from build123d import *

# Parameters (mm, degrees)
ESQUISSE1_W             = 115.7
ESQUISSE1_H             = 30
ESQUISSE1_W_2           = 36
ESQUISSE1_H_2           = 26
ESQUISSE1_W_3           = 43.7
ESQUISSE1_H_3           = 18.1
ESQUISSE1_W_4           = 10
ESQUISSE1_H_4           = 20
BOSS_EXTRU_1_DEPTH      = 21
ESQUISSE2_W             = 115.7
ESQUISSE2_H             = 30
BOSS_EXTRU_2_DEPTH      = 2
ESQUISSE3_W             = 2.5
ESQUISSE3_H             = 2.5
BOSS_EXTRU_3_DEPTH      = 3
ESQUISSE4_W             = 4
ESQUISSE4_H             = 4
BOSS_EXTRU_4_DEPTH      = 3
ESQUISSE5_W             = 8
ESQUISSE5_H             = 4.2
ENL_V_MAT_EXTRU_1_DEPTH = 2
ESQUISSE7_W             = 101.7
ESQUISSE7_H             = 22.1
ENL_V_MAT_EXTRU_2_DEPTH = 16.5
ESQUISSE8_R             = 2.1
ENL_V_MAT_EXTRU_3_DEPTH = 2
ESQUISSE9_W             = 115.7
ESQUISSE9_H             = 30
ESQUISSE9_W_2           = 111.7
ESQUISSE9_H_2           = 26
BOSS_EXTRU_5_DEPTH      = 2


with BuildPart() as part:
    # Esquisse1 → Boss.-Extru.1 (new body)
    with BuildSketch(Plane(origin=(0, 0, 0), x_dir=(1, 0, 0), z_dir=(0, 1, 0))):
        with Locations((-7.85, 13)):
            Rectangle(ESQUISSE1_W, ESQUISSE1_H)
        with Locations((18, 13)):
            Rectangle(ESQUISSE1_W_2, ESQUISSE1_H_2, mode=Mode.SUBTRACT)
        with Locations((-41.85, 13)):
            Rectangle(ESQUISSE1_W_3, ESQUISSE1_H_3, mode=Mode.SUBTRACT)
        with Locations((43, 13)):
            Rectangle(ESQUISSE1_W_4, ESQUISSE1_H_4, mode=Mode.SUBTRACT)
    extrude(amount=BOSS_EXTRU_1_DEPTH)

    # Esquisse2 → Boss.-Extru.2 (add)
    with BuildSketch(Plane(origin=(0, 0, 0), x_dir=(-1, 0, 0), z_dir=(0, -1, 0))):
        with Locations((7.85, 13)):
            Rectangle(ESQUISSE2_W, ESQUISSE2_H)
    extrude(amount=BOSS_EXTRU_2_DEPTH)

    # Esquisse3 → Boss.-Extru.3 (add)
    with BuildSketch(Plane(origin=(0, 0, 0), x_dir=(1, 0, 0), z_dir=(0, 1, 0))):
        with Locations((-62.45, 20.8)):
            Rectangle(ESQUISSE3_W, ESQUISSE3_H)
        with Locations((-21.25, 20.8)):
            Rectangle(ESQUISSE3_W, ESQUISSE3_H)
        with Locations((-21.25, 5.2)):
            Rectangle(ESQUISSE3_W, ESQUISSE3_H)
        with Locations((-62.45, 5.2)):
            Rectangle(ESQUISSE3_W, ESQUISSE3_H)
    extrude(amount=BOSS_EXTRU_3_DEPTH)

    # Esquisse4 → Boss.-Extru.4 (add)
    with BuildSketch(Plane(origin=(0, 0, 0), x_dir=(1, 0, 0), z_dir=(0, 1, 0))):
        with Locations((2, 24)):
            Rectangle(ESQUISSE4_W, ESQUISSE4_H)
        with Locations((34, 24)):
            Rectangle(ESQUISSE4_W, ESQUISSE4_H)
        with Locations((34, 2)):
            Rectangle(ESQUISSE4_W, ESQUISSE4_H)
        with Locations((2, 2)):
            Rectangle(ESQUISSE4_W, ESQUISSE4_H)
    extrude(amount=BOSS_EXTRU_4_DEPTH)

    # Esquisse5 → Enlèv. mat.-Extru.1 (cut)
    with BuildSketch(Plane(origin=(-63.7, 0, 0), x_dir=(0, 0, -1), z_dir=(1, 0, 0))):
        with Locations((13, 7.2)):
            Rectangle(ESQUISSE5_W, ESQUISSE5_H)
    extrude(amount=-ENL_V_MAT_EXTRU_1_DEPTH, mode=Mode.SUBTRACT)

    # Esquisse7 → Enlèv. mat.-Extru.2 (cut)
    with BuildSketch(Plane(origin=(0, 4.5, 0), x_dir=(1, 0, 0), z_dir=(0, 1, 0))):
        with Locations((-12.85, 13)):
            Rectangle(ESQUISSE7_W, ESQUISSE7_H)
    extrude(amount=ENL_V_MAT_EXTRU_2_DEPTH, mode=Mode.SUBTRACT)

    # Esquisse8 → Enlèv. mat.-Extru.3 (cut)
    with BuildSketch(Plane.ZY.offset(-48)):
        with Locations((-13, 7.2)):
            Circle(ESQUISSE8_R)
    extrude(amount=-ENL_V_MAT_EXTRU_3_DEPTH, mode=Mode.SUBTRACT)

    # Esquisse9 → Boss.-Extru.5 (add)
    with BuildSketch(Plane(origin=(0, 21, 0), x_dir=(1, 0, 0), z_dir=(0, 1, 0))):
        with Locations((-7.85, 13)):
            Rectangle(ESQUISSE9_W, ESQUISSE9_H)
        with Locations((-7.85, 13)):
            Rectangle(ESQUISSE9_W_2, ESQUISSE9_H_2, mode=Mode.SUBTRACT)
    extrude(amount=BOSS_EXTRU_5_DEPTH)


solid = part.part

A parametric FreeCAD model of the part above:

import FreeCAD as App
import Part
import Sketcher

V = App.Vector
Q = App.Units.Quantity

doc = App.newDocument("Part")
params = doc.addObject("Spreadsheet::Sheet", "Params")
for row, (alias, value) in enumerate([
    ("sketch1_width", "36 mm"),
    ("sketch1_width2", "10 mm"),
    ("sketch1_height", "30 mm"),
    ("sketch1_height2", "26 mm"),
    ("sketch1_height3", "20 mm"),
    ("pad1_length", "21 mm"),
    ("sketch2_height", "30 mm"),
    ("sketch2_width", "115.7 mm"),
    ("pad2_length", "2 mm"),
    ("sketch3_width", "2.5 mm"),
    ("pad3_length", "3 mm"),
    ("sketch4_width", "4 mm"),
    ("pad4_length", "3 mm"),
    ("sketch5_height", "8 mm"),
    ("sketch5_width", "4.2 mm"),
    ("pocket1_length", "2 mm"),
    ("sketch6_width", "101.7 mm"),
    ("sketch6_height", "22.1 mm"),
    ("pocket2_length", "16.5 mm"),
    ("sketch7_diameter", "4.2 mm"),
    ("pocket3_length", "2 mm"),
    ("sketch8_height", "30 mm"),
    ("sketch8_height2", "26 mm"),
    ("sketch8_width", "115.7 mm"),
    ("sketch8_width2", "111.7 mm"),
    ("pad5_length", "2 mm"),
], start=1):
    params.set(f"A{row}", alias)
    params.set(f"B{row}", "=" + value)
    params.setAlias(f"B{row}", alias)

body = doc.addObject("PartDesign::Body", "Body")

sketch1 = body.newObject("Sketcher::SketchObject", "Sketch")
sketch1.AttachmentSupport = (doc.getObject("XZ_Plane"), [""])
sketch1.MapMode = "FlatFace"
sketch1.addGeometry([
    Part.LineSegment(V(-66, -28, 0), V(-66, 2, 0)),
    Part.LineSegment(V(-66, 2, 0), V(50, 2, 0)),
    Part.LineSegment(V(50, 2, 0), V(50, -28, 0)),
    Part.LineSegment(V(50, -28, 0), V(-66, -28, 0)),
    Part.LineSegment(V(-20, -4, 0), V(-64, -4, 0)),
    Part.LineSegment(V(-64, -4, 0), V(-64, -22, 0)),
    Part.LineSegment(V(-64, -22, 0), V(-20, -22, 0)),
    Part.LineSegment(V(-20, -22, 0), V(-20, -4, 0)),
    Part.LineSegment(V(36, 0, 0), V(0, 0, 0)),
    Part.LineSegment(V(0, 0, 0), V(0, -26, 0)),
    Part.LineSegment(V(0, -26, 0), V(36, -26, 0)),
    Part.LineSegment(V(36, -26, 0), V(36, 0, 0)),
    Part.LineSegment(V(48, -3, 0), V(38, -3, 0)),
    Part.LineSegment(V(38, -3, 0), V(38, -23, 0)),
    Part.LineSegment(V(38, -23, 0), V(48, -23, 0)),
    Part.LineSegment(V(48, -23, 0), V(48, -3, 0)),
], False)
sketch1.addConstraint([
    Sketcher.Constraint("Coincident", 0, 2, 1, 1),
    Sketcher.Constraint("Coincident", 1, 2, 2, 1),
    Sketcher.Constraint("Coincident", 2, 2, 3, 1),
    Sketcher.Constraint("Coincident", 3, 2, 0, 1),
    Sketcher.Constraint("Coincident", 4, 2, 5, 1),
    Sketcher.Constraint("Coincident", 5, 2, 6, 1),
    Sketcher.Constraint("Coincident", 6, 2, 7, 1),
    Sketcher.Constraint("Coincident", 7, 2, 4, 1),
    Sketcher.Constraint("Coincident", 8, 2, 9, 1),
    Sketcher.Constraint("Coincident", 9, 2, 10, 1),
    Sketcher.Constraint("Coincident", 10, 2, 11, 1),
    Sketcher.Constraint("Coincident", 11, 2, 8, 1),
    Sketcher.Constraint("Coincident", 12, 2, 13, 1),
    Sketcher.Constraint("Coincident", 13, 2, 14, 1),
    Sketcher.Constraint("Coincident", 14, 2, 15, 1),
    Sketcher.Constraint("Coincident", 15, 2, 12, 1),
    Sketcher.Constraint("Vertical", 0),
    Sketcher.Constraint("Horizontal", 1),
    Sketcher.Constraint("Vertical", 2),
    Sketcher.Constraint("Horizontal", 3),
    Sketcher.Constraint("Horizontal", 4),
    Sketcher.Constraint("Vertical", 5),
    Sketcher.Constraint("Horizontal", 6),
    Sketcher.Constraint("Vertical", 7),
    Sketcher.Constraint("Horizontal", 8),
    Sketcher.Constraint("Vertical", 9),
    Sketcher.Constraint("Horizontal", 10),
    Sketcher.Constraint("Vertical", 11),
    Sketcher.Constraint("Horizontal", 12),
    Sketcher.Constraint("Vertical", 13),
    Sketcher.Constraint("Horizontal", 14),
    Sketcher.Constraint("Vertical", 15),
    Sketcher.Constraint("Coincident", 8, 2, -1, 1),
    Sketcher.Constraint("DistanceX", 8, 2, 8, 1, Q("36 mm")),
    Sketcher.Constraint("DistanceX", 12, 2, 12, 1, Q("10 mm")),
    Sketcher.Constraint("DistanceY", 0, 1, 0, 2, Q("30 mm")),
    Sketcher.Constraint("DistanceY", 9, 2, 9, 1, Q("26 mm")),
    Sketcher.Constraint("DistanceY", 13, 2, 13, 1, Q("20 mm")),
    Sketcher.Constraint("DistanceX", 1, 1, 1, 2, Q("115.7 mm")),
    Sketcher.Constraint("DistanceX", 4, 2, 4, 1, Q("43.7 mm")),
    Sketcher.Constraint("DistanceY", 5, 2, 5, 1, Q("18.1 mm")),
    Sketcher.Constraint("DistanceY", -1, 1, 0, 2, Q("2 mm")),
    Sketcher.Constraint("DistanceX", -1, 1, 1, 2, Q("50 mm")),
    Sketcher.Constraint("DistanceX", 6, 2, -1, 1, Q("20 mm")),
    Sketcher.Constraint("DistanceX", -1, 1, 12, 2, Q("38 mm")),
    Sketcher.Constraint("DistanceY", 12, 2, -1, 1, Q("3 mm")),
    Sketcher.Constraint("DistanceY", 4, 2, -1, 1, Q("3.95 mm")),
])
sketch1.setExpression("Constraints[33]", "Params.sketch1_width")
sketch1.setExpression("Constraints[34]", "Params.sketch1_width2")
sketch1.setExpression("Constraints[35]", "Params.sketch1_height")
sketch1.setExpression("Constraints[36]", "Params.sketch1_height2")
sketch1.setExpression("Constraints[37]", "Params.sketch1_height3")
pad1 = body.newObject("PartDesign::Pad", "Pad")
pad1.Profile = sketch1
pad1.setExpression("Length", "Params.pad1_length")
pad1.Reversed = True

sketch2 = body.newObject("Sketcher::SketchObject", "Sketch001")
sketch2.AttachmentSupport = (doc.getObject("XZ_Plane"), [""])
sketch2.MapMode = "FlatFace"
sketch2.addGeometry([
    Part.LineSegment(V(50, -28, 0), V(50, 2, 0)),
    Part.LineSegment(V(50, 2, 0), V(-66, 2, 0)),
    Part.LineSegment(V(-66, 2, 0), V(-66, -28, 0)),
    Part.LineSegment(V(-66, -28, 0), V(50, -28, 0)),
], False)
sketch2.addConstraint([
    Sketcher.Constraint("Coincident", 0, 2, 1, 1),
    Sketcher.Constraint("Coincident", 1, 2, 2, 1),
    Sketcher.Constraint("Coincident", 2, 2, 3, 1),
    Sketcher.Constraint("Coincident", 3, 2, 0, 1),
    Sketcher.Constraint("Vertical", 0),
    Sketcher.Constraint("Horizontal", 1),
    Sketcher.Constraint("Vertical", 2),
    Sketcher.Constraint("Horizontal", 3),
    Sketcher.Constraint("DistanceY", 0, 1, 0, 2, Q("30 mm")),
    Sketcher.Constraint("DistanceX", 1, 2, 1, 1, Q("115.7 mm")),
    Sketcher.Constraint("DistanceX", -1, 1, 0, 2, Q("50 mm")),
    Sketcher.Constraint("DistanceY", -1, 1, 0, 2, Q("2 mm")),
])
sketch2.setExpression("Constraints[8]", "Params.sketch2_height")
sketch2.setExpression("Constraints[9]", "Params.sketch2_width")
pad2 = body.newObject("PartDesign::Pad", "Pad001")
pad2.Profile = sketch2
pad2.setExpression("Length", "Params.pad2_length")

sketch3 = body.newObject("Sketcher::SketchObject", "Sketch002")
sketch3.AttachmentSupport = (doc.getObject("XZ_Plane"), [""])
sketch3.MapMode = "FlatFace"
sketch3.addGeometry([
    Part.LineSegment(V(-63.7, -22.1, 0), V(-63.7, -19.6, 0)),
    Part.LineSegment(V(-63.7, -19.6, 0), V(-61.2, -19.6, 0)),
    Part.LineSegment(V(-61.2, -19.6, 0), V(-61.2, -22.1, 0)),
    Part.LineSegment(V(-61.2, -22.1, 0), V(-63.7, -22.1, 0)),
    Part.LineSegment(V(-22.5, -22.1, 0), V(-22.5, -19.6, 0)),
    Part.LineSegment(V(-22.5, -19.6, 0), V(-20, -19.6, 0)),
    Part.LineSegment(V(-20, -19.6, 0), V(-20, -22.1, 0)),
    Part.LineSegment(V(-20, -22.1, 0), V(-22.5, -22.1, 0)),
    Part.LineSegment(V(-22.5, -6.5, 0), V(-22.5, -4, 0)),
    Part.LineSegment(V(-22.5, -4, 0), V(-20, -4, 0)),
    Part.LineSegment(V(-20, -4, 0), V(-20, -6.5, 0)),
    Part.LineSegment(V(-20, -6.5, 0), V(-22.5, -6.5, 0)),
    Part.LineSegment(V(-63.7, -6.5, 0), V(-63.7, -4, 0)),
    Part.LineSegment(V(-63.7, -4, 0), V(-61.2, -4, 0)),
    Part.LineSegment(V(-61.2, -4, 0), V(-61.2, -6.5, 0)),
    Part.LineSegment(V(-61.2, -6.5, 0), V(-63.7, -6.5, 0)),
], False)
sketch3.addConstraint([
    Sketcher.Constraint("Coincident", 0, 2, 1, 1),
    Sketcher.Constraint("Coincident", 1, 2, 2, 1),
    Sketcher.Constraint("Coincident", 2, 2, 3, 1),
    Sketcher.Constraint("Coincident", 3, 2, 0, 1),
    Sketcher.Constraint("Coincident", 4, 2, 5, 1),
    Sketcher.Constraint("Coincident", 5, 2, 6, 1),
    Sketcher.Constraint("Coincident", 6, 2, 7, 1),
    Sketcher.Constraint("Coincident", 7, 2, 4, 1),
    Sketcher.Constraint("Coincident", 8, 2, 9, 1),
    Sketcher.Constraint("Coincident", 9, 2, 10, 1),
    Sketcher.Constraint("Coincident", 10, 2, 11, 1),
    Sketcher.Constraint("Coincident", 11, 2, 8, 1),
    Sketcher.Constraint("Coincident", 12, 2, 13, 1),
    Sketcher.Constraint("Coincident", 13, 2, 14, 1),
    Sketcher.Constraint("Coincident", 14, 2, 15, 1),
    Sketcher.Constraint("Coincident", 15, 2, 12, 1),
    Sketcher.Constraint("Vertical", 0),
    Sketcher.Constraint("Horizontal", 1),
    Sketcher.Constraint("Vertical", 2),
    Sketcher.Constraint("Horizontal", 3),
    Sketcher.Constraint("Vertical", 4),
    Sketcher.Constraint("Horizontal", 5),
    Sketcher.Constraint("Vertical", 6),
    Sketcher.Constraint("Horizontal", 7),
    Sketcher.Constraint("Vertical", 8),
    Sketcher.Constraint("Horizontal", 9),
    Sketcher.Constraint("Vertical", 10),
    Sketcher.Constraint("Horizontal", 11),
    Sketcher.Constraint("Vertical", 12),
    Sketcher.Constraint("Horizontal", 13),
    Sketcher.Constraint("Vertical", 14),
    Sketcher.Constraint("Horizontal", 15),
    Sketcher.Constraint("Horizontal", 1, 2, 4, 2),
    Sketcher.Constraint("Horizontal", 3, 2, 6, 2),
    Sketcher.Constraint("Horizontal", 9, 2, 12, 2),
    Sketcher.Constraint("Horizontal", 11, 2, 14, 2),
    Sketcher.Constraint("Vertical", 7, 2, 8, 2),
    Sketcher.Constraint("Vertical", 6, 2, 9, 2),
    Sketcher.Constraint("Vertical", 3, 2, 12, 2),
    Sketcher.Constraint("Vertical", 2, 2, 13, 2),
    Sketcher.Constraint("Equal", 3, 5),
    Sketcher.Constraint("Equal", 15, 0),
    Sketcher.Constraint("Equal", 6, 8),
    Sketcher.Constraint("DistanceX", 1, 1, 1, 2, Q("2.5 mm")),
    Sketcher.Constraint("DistanceX", 5, 2, -1, 1, Q("20 mm")),
    Sketcher.Constraint("DistanceX", 0, 2, -1, 1, Q("63.7 mm")),
    Sketcher.Constraint("DistanceY", 4, 2, 8, 2, Q("15.6 mm")),
    Sketcher.Constraint("DistanceY", 0, 2, -1, 1, Q("19.55 mm")),
])
sketch3.setExpression("Constraints[43]", "Params.sketch3_width")
pad3 = body.newObject("PartDesign::Pad", "Pad002")
pad3.Profile = sketch3
pad3.setExpression("Length", "Params.pad3_length")
pad3.Reversed = True

sketch4 = body.newObject("Sketcher::SketchObject", "Sketch003")
sketch4.AttachmentSupport = (doc.getObject("XZ_Plane"), [""])
sketch4.MapMode = "FlatFace"
sketch4.addGeometry([
    Part.LineSegment(V(0, -26, 0), V(0, -22, 0)),
    Part.LineSegment(V(0, -22, 0), V(4, -22, 0)),
    Part.LineSegment(V(4, -22, 0), V(4, -26, 0)),
    Part.LineSegment(V(4, -26, 0), V(0, -26, 0)),
    Part.LineSegment(V(32, -26, 0), V(32, -22, 0)),
    Part.LineSegment(V(32, -22, 0), V(36, -22, 0)),
    Part.LineSegment(V(36, -22, 0), V(36, -26, 0)),
    Part.LineSegment(V(36, -26, 0), V(32, -26, 0)),
    Part.LineSegment(V(32, -4, 0), V(32, 0, 0)),
    Part.LineSegment(V(32, 0, 0), V(36, 0, 0)),
    Part.LineSegment(V(36, 0, 0), V(36, -4, 0)),
    Part.LineSegment(V(36, -4, 0), V(32, -4, 0)),
    Part.LineSegment(V(0, -4, 0), V(0, 0, 0)),
    Part.LineSegment(V(0, 0, 0), V(4, 0, 0)),
    Part.LineSegment(V(4, 0, 0), V(4, -4, 0)),
    Part.LineSegment(V(4, -4, 0), V(0, -4, 0)),
], False)
sketch4.addConstraint([
    Sketcher.Constraint("Coincident", 0, 2, 1, 1),
    Sketcher.Constraint("Coincident", 1, 2, 2, 1),
    Sketcher.Constraint("Coincident", 2, 2, 3, 1),
    Sketcher.Constraint("Coincident", 3, 2, 0, 1),
    Sketcher.Constraint("Coincident", 4, 2, 5, 1),
    Sketcher.Constraint("Coincident", 5, 2, 6, 1),
    Sketcher.Constraint("Coincident", 6, 2, 7, 1),
    Sketcher.Constraint("Coincident", 7, 2, 4, 1),
    Sketcher.Constraint("Coincident", 8, 2, 9, 1),
    Sketcher.Constraint("Coincident", 9, 2, 10, 1),
    Sketcher.Constraint("Coincident", 10, 2, 11, 1),
    Sketcher.Constraint("Coincident", 11, 2, 8, 1),
    Sketcher.Constraint("Coincident", 12, 2, 13, 1),
    Sketcher.Constraint("Coincident", 13, 2, 14, 1),
    Sketcher.Constraint("Coincident", 14, 2, 15, 1),
    Sketcher.Constraint("Coincident", 15, 2, 12, 1),
    Sketcher.Constraint("Vertical", 0),
    Sketcher.Constraint("Horizontal", 1),
    Sketcher.Constraint("Vertical", 2),
    Sketcher.Constraint("Horizontal", 3),
    Sketcher.Constraint("Vertical", 4),
    Sketcher.Constraint("Horizontal", 5),
    Sketcher.Constraint("Vertical", 6),
    Sketcher.Constraint("Horizontal", 7),
    Sketcher.Constraint("Vertical", 8),
    Sketcher.Constraint("Horizontal", 9),
    Sketcher.Constraint("Vertical", 10),
    Sketcher.Constraint("Horizontal", 11),
    Sketcher.Constraint("Vertical", 12),
    Sketcher.Constraint("Horizontal", 13),
    Sketcher.Constraint("Vertical", 14),
    Sketcher.Constraint("Horizontal", 15),
    Sketcher.Constraint("Coincident", 12, 2, -1, 1),
    Sketcher.Constraint("PointOnObject", 0, 2, -2),
    Sketcher.Constraint("PointOnObject", 8, 2, -1),
    Sketcher.Constraint("Horizontal", 1, 2, 4, 2),
    Sketcher.Constraint("Horizontal", 3, 2, 6, 2),
    Sketcher.Constraint("Horizontal", 11, 2, 14, 2),
    Sketcher.Constraint("Vertical", 7, 2, 8, 2),
    Sketcher.Constraint("Vertical", 6, 2, 9, 2),
    Sketcher.Constraint("Vertical", 2, 2, 13, 2),
    Sketcher.Constraint("Equal", 3, 5),
    Sketcher.Constraint("Equal", 15, 0),
    Sketcher.Constraint("Equal", 6, 8),
    Sketcher.Constraint("DistanceX", 1, 1, 1, 2, Q("4 mm")),
    Sketcher.Constraint("DistanceY", 0, 2, -1, 1, Q("22 mm")),
    Sketcher.Constraint("DistanceX", -1, 1, 4, 2, Q("32 mm")),
])
sketch4.setExpression("Constraints[44]", "Params.sketch4_width")
pad4 = body.newObject("PartDesign::Pad", "Pad003")
pad4.Profile = sketch4
pad4.setExpression("Length", "Params.pad4_length")
pad4.Reversed = True

sketch5 = body.newObject("Sketcher::SketchObject", "Sketch004")
sketch5.AttachmentSupport = (doc.getObject("YZ_Plane"), [""])
sketch5.MapMode = "FlatFace"
sketch5.AttachmentOffset = App.Placement(V(0, 0, -63.7), App.Rotation())
sketch5.addGeometry([
    Part.LineSegment(V(9.3, -9, 0), V(5.1, -9, 0)),
    Part.LineSegment(V(5.1, -9, 0), V(5.1, -17, 0)),
    Part.LineSegment(V(5.1, -17, 0), V(9.3, -17, 0)),
    Part.LineSegment(V(9.3, -17, 0), V(9.3, -9, 0)),
], False)
sketch5.addConstraint([
    Sketcher.Constraint("Coincident", 0, 2, 1, 1),
    Sketcher.Constraint("Coincident", 1, 2, 2, 1),
    Sketcher.Constraint("Coincident", 2, 2, 3, 1),
    Sketcher.Constraint("Coincident", 3, 2, 0, 1),
    Sketcher.Constraint("Horizontal", 0),
    Sketcher.Constraint("Vertical", 1),
    Sketcher.Constraint("Horizontal", 2),
    Sketcher.Constraint("Vertical", 3),
    Sketcher.Constraint("DistanceY", 1, 2, 1, 1, Q("8 mm")),
    Sketcher.Constraint("DistanceX", 0, 2, 0, 1, Q("4.2 mm")),
    Sketcher.Constraint("DistanceY", 0, 2, -1, 1, Q("9 mm")),
    Sketcher.Constraint("DistanceX", -1, 1, 0, 2, Q("5.1 mm")),
])
sketch5.setExpression("Constraints[8]", "Params.sketch5_height")
sketch5.setExpression("Constraints[9]", "Params.sketch5_width")
pocket1 = body.newObject("PartDesign::Pocket", "Pocket")
pocket1.Profile = sketch5
pocket1.setExpression("Length", "Params.pocket1_length")

sketch6 = body.newObject("Sketcher::SketchObject", "Sketch005")
sketch6.AttachmentSupport = (doc.getObject("XZ_Plane"), [""])
sketch6.MapMode = "FlatFace"
sketch6.AttachmentOffset = App.Placement(V(0, 0, -4.5), App.Rotation())
sketch6.addGeometry([
    Part.LineSegment(V(-64, -24, 0), V(-64, -2, 0)),
    Part.LineSegment(V(-64, -2, 0), V(38, -2, 0)),
    Part.LineSegment(V(38, -2, 0), V(38, -24, 0)),
    Part.LineSegment(V(38, -24, 0), V(-64, -24, 0)),
], False)
sketch6.addConstraint([
    Sketcher.Constraint("Coincident", 0, 2, 1, 1),
    Sketcher.Constraint("Coincident", 1, 2, 2, 1),
    Sketcher.Constraint("Coincident", 2, 2, 3, 1),
    Sketcher.Constraint("Coincident", 3, 2, 0, 1),
    Sketcher.Constraint("Vertical", 0),
    Sketcher.Constraint("Horizontal", 1),
    Sketcher.Constraint("Vertical", 2),
    Sketcher.Constraint("Horizontal", 3),
    Sketcher.Constraint("DistanceX", 1, 1, 1, 2, Q("101.7 mm")),
    Sketcher.Constraint("DistanceY", 0, 1, 0, 2, Q("22.1 mm")),
    Sketcher.Constraint("DistanceX", -1, 1, 1, 2, Q("38 mm")),
    Sketcher.Constraint("DistanceY", 0, 2, -1, 1, Q("1.95 mm")),
])
sketch6.setExpression("Constraints[8]", "Params.sketch6_width")
sketch6.setExpression("Constraints[9]", "Params.sketch6_height")
pocket2 = body.newObject("PartDesign::Pocket", "Pocket001")
pocket2.Profile = sketch6
pocket2.setExpression("Length", "Params.pocket2_length")

sketch7 = body.newObject("Sketcher::SketchObject", "Sketch006")
sketch7.AttachmentSupport = (doc.getObject("YZ_Plane"), [""])
sketch7.MapMode = "FlatFace"
sketch7.AttachmentOffset = App.Placement(V(0, 0, 48), App.Rotation())
sketch7.addGeometry(Part.Circle(V(7.2, -13, 0), V(0, 0, 1), 2.1), False)
sketch7.addConstraint([
    Sketcher.Constraint("Diameter", 0, Q("4.2 mm")),
    Sketcher.Constraint("DistanceY", 0, 3, -1, 1, Q("13 mm")),
    Sketcher.Constraint("DistanceX", -1, 1, 0, 3, Q("7.2 mm")),
])
sketch7.setExpression("Constraints[0]", "Params.sketch7_diameter")
pocket3 = body.newObject("PartDesign::Pocket", "Pocket002")
pocket3.Profile = sketch7
pocket3.setExpression("Length", "Params.pocket3_length")
pocket3.Reversed = True

sketch8 = body.newObject("Sketcher::SketchObject", "Sketch007")
sketch8.AttachmentSupport = (doc.getObject("XZ_Plane"), [""])
sketch8.MapMode = "FlatFace"
sketch8.AttachmentOffset = App.Placement(V(0, 0, -21), App.Rotation())
sketch8.addGeometry([
    Part.LineSegment(V(-66, -28, 0), V(-66, 2, 0)),
    Part.LineSegment(V(-66, 2, 0), V(50, 2, 0)),
    Part.LineSegment(V(50, 2, 0), V(50, -28, 0)),
    Part.LineSegment(V(50, -28, 0), V(-66, -28, 0)),
    Part.LineSegment(V(48, 0, 0), V(-64, 0, 0)),
    Part.LineSegment(V(-64, 0, 0), V(-64, -26, 0)),
    Part.LineSegment(V(-64, -26, 0), V(48, -26, 0)),
    Part.LineSegment(V(48, -26, 0), V(48, 0, 0)),
], False)
sketch8.addConstraint([
    Sketcher.Constraint("Coincident", 0, 2, 1, 1),
    Sketcher.Constraint("Coincident", 1, 2, 2, 1),
    Sketcher.Constraint("Coincident", 2, 2, 3, 1),
    Sketcher.Constraint("Coincident", 3, 2, 0, 1),
    Sketcher.Constraint("Coincident", 4, 2, 5, 1),
    Sketcher.Constraint("Coincident", 5, 2, 6, 1),
    Sketcher.Constraint("Coincident", 6, 2, 7, 1),
    Sketcher.Constraint("Coincident", 7, 2, 4, 1),
    Sketcher.Constraint("Vertical", 0),
    Sketcher.Constraint("Horizontal", 1),
    Sketcher.Constraint("Vertical", 2),
    Sketcher.Constraint("Horizontal", 3),
    Sketcher.Constraint("Horizontal", 4),
    Sketcher.Constraint("Vertical", 5),
    Sketcher.Constraint("Horizontal", 6),
    Sketcher.Constraint("Vertical", 7),
    Sketcher.Constraint("PointOnObject", 4, 2, -1),
    Sketcher.Constraint("DistanceY", 0, 1, 0, 2, Q("30 mm")),
    Sketcher.Constraint("DistanceY", 5, 2, 5, 1, Q("26 mm")),
    Sketcher.Constraint("DistanceX", 1, 1, 1, 2, Q("115.7 mm")),
    Sketcher.Constraint("DistanceX", 4, 2, 4, 1, Q("111.7 mm")),
    Sketcher.Constraint("DistanceY", -1, 1, 0, 2, Q("2 mm")),
    Sketcher.Constraint("DistanceX", -1, 1, 1, 2, Q("50 mm")),
    Sketcher.Constraint("DistanceX", -1, 1, 6, 2, Q("48 mm")),
])
sketch8.setExpression("Constraints[17]", "Params.sketch8_height")
sketch8.setExpression("Constraints[18]", "Params.sketch8_height2")
sketch8.setExpression("Constraints[19]", "Params.sketch8_width")
sketch8.setExpression("Constraints[20]", "Params.sketch8_width2")
pad5 = body.newObject("PartDesign::Pad", "Pad004")
pad5.Profile = sketch8
pad5.setExpression("Length", "Params.pad5_length")
pad5.Reversed = True

doc.recompute()
